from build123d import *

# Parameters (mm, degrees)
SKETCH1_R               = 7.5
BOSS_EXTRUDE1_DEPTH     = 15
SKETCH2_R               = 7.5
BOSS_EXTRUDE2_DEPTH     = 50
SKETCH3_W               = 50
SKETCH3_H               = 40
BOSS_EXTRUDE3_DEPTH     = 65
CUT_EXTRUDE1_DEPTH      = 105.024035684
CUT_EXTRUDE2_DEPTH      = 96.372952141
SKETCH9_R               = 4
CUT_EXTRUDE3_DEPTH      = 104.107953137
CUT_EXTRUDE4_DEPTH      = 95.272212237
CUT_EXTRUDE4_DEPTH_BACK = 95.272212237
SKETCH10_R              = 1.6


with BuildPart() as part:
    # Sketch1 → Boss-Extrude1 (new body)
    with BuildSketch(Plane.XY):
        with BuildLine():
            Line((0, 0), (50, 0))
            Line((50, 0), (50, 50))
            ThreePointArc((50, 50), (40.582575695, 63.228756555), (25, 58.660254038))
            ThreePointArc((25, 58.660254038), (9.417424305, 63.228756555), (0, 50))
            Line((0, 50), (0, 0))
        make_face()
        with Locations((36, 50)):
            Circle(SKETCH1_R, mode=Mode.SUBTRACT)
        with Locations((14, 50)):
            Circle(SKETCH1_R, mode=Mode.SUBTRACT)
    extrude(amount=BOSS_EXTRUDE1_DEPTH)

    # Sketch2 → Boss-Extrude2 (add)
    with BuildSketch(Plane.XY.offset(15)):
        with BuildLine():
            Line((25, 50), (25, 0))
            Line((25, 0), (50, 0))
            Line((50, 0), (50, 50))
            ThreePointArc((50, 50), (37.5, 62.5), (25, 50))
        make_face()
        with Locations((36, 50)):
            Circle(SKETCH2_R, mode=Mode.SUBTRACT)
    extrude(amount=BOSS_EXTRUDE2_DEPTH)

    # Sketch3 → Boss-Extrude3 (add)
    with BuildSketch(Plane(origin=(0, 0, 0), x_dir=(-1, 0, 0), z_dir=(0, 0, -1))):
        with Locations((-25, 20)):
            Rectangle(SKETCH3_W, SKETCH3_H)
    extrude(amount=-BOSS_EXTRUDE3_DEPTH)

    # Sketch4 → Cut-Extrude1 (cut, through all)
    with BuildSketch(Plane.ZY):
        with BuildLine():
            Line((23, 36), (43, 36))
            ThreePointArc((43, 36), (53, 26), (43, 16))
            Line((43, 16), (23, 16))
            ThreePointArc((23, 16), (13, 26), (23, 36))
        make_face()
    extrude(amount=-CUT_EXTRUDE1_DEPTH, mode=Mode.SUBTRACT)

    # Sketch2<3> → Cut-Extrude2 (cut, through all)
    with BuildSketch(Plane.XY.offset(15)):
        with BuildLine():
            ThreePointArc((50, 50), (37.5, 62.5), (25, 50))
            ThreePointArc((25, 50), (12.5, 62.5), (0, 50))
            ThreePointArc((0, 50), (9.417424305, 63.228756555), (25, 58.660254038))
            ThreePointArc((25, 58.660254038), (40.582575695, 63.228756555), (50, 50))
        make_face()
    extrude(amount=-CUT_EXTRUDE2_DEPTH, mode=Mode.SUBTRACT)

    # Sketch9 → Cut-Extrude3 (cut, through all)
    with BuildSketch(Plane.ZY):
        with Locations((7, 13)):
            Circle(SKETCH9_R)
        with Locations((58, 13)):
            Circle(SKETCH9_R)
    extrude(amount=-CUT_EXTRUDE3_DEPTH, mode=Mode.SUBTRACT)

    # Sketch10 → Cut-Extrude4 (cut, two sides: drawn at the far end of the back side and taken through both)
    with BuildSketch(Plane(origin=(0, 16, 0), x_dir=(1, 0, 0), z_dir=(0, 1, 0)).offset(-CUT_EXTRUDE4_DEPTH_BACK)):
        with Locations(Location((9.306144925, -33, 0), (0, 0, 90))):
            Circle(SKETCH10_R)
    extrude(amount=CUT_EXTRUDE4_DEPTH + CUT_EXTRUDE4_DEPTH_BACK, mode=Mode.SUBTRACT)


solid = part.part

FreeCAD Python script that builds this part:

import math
import FreeCAD as App
import Part
import Sketcher
from FreeCAD import Vector
Q = App.Units.Quantity

doc = App.newDocument("Part")
body = doc.addObject("PartDesign::Body", "Body")

# Sketch on XY plane
sketch1 = doc.addObject("Sketcher::SketchObject", "Sketch")
body.addObject(sketch1)
sketch1.AttachmentSupport = (doc.XY_Plane, [""])
sketch1.MapMode = "FlatFace"
sketch1.addGeometry(Part.LineSegment(Vector(0, 0, 0), Vector(50, 0, 0)), False)
sketch1.addGeometry(Part.LineSegment(Vector(50, 0, 0), Vector(50, 50, 0)), False)
sketch1.addGeometry(Part.ArcOfCircle(Part.Circle(Vector(36, 50, 0), Vector(0, 0, 1), 14), math.radians(0), math.radians(142)), False)
sketch1.addGeometry(Part.ArcOfCircle(Part.Circle(Vector(14, 50, 0), Vector(0, 0, 1), 14), math.radians(38), math.radians(180)), False)
sketch1.addGeometry(Part.LineSegment(Vector(0, 50, 0), Vector(0, 0, 0)), False)
sketch1.addGeometry(Part.Circle(Vector(14, 50, 0), Vector(0, 0, 1), 8), False)
sketch1.addGeometry(Part.Circle(Vector(36, 50, 0), Vector(0, 0, 1), 8), False)
sketch1.addConstraint(Sketcher.Constraint("Coincident", 0, 2, 1, 1))
sketch1.addConstraint(Sketcher.Constraint("Tangent", 1, 2, 2, 1))
sketch1.addConstraint(Sketcher.Constraint("Coincident", 2, 2, 3, 1))
sketch1.addConstraint(Sketcher.Constraint("Tangent", 3, 2, 4, 1))
sketch1.addConstraint(Sketcher.Constraint("Coincident", 4, 2, 0, 1))
sketch1.addConstraint(Sketcher.Constraint("Horizontal", 0))
sketch1.addConstraint(Sketcher.Constraint("Vertical", 1))
sketch1.addConstraint(Sketcher.Constraint("Vertical", 4))
sketch1.addConstraint(Sketcher.Constraint("Coincident", 4, 2, -1, 1))
sketch1.addConstraint(Sketcher.Constraint("Coincident", 5, 3, 3, 3))
sketch1.addConstraint(Sketcher.Constraint("Coincident", 6, 3, 2, 3))
sketch1.addConstraint(Sketcher.Constraint("Equal", 2, 3))
sketch1.addConstraint(Sketcher.Constraint("Equal", 5, 6))
sketch1.addConstraint(Sketcher.Constraint("Horizontal", 2, 3, 3, 3))
sketch1.addConstraint(Sketcher.Constraint("Equal", 0, 1))
sketch1.addConstraint(Sketcher.Constraint("Diameter", 5, Q("15 mm")))
sketch1.addConstraint(Sketcher.Constraint("Radius", 2, Q("14 mm")))
sketch1.addConstraint(Sketcher.Constraint("DistanceX", 0, 1, 0, 2, Q("50 mm")))
pad1 = doc.addObject("PartDesign::Pad", "Pad")
body.addObject(pad1)
pad1.Profile = sketch1
pad1.Length = 15

# Sketch on XY plane
sketch2 = doc.addObject("Sketcher::SketchObject", "Sketch001")
body.addObject(sketch2)
sketch2.AttachmentSupport = (doc.XY_Plane, [""])
sketch2.MapMode = "FlatFace"
sketch2.AttachmentOffset = App.Placement(Vector(0, 0, 15), App.Rotation())
sketch2.addGeometry(Part.LineSegment(Vector(25, 50, 0), Vector(25, 0, 0)), False)
sketch2.addGeometry(Part.LineSegment(Vector(25, 0, 0), Vector(50, 0, 0)), False)
sketch2.addGeometry(Part.LineSegment(Vector(50, 0, 0), Vector(50, 50, 0)), False)
sketch2.addGeometry(Part.ArcOfCircle(Part.Circle(Vector(38, 50, 0), Vector(0, 0, 1), 12), math.radians(0), math.radians(180)), False)
sketch2.addGeometry(Part.Circle(Vector(36, 50, 0), Vector(0, 0, 1), 8), False)
sketch2.addConstraint(Sketcher.Constraint("Coincident", 0, 2, 1, 1))
sketch2.addConstraint(Sketcher.Constraint("Coincident", 1, 2, 2, 1))
sketch2.addConstraint(Sketcher.Constraint("Tangent", 2, 2, 3, 1))
sketch2.addConstraint(Sketcher.Constraint("Tangent", 3, 2, 0, 1))
sketch2.addConstraint(Sketcher.Constraint("Vertical", 0))
sketch2.addConstraint(Sketcher.Constraint("Horizontal", 1))
sketch2.addConstraint(Sketcher.Constraint("Vertical", 2))
sketch2.addConstraint(Sketcher.Constraint("PointOnObject", 0, 2, -1))
sketch2.addConstraint(Sketcher.Constraint("Horizontal", 3, 3, 4, 3))
sketch2.addConstraint(Sketcher.Constraint("Diameter", 4, Q("15 mm")))
sketch2.addConstraint(Sketcher.Constraint("Radius", 3, Q("12.5 mm")))
sketch2.addConstraint(Sketcher.Constraint("DistanceY", 0, 2, 0, 1, Q("50 mm")))
sketch2.addConstraint(Sketcher.Constraint("DistanceX", -1, 1, 4, 3, Q("36 mm")))
sketch2.addConstraint(Sketcher.Constraint("DistanceX", -1, 1, 0, 2, Q("25 mm")))
pad2 = doc.addObject("PartDesign::Pad", "Pad001")
body.addObject(pad2)
pad2.Profile = sketch2
pad2.Length = 50

# Sketch on XY plane
sketch3 = doc.addObject("Sketcher::SketchObject", "Sketch002")
body.addObject(sketch3)
sketch3.AttachmentSupport = (doc.XY_Plane, [""])
sketch3.MapMode = "FlatFace"
sketch3.addGeometry(Part.LineSegment(Vector(50, 40, 0), Vector(50, 0, 0)), False)
sketch3.addGeometry(Part.LineSegment(Vector(50, 0, 0), Vector(0, 0, 0)), False)
sketch3.addGeometry(Part.LineSegment(Vector(0, 0, 0), Vector(0, 40, 0)), False)
sketch3.addGeometry(Part.LineSegment(Vector(0, 40, 0), Vector(50, 40, 0)), False)
sketch3.addConstraint(Sketcher.Constraint("Coincident", 0, 2, 1, 1))
sketch3.addConstraint(Sketcher.Constraint("Coincident", 1, 2, 2, 1))
sketch3.addConstraint(Sketcher.Constraint("Coincident", 2, 2, 3, 1))
sketch3.addConstraint(Sketcher.Constraint("Coincident", 3, 2, 0, 1))
sketch3.addConstraint(Sketcher.Constraint("Vertical", 0))
sketch3.addConstraint(Sketcher.Constraint("Horizontal", 1))
sketch3.addConstraint(Sketcher.Constraint("Vertical", 2))
sketch3.addConstraint(Sketcher.Constraint("Horizontal", 3))
sketch3.addConstraint(Sketcher.Constraint("Coincident", 1, 2, -1, 1))
sketch3.addConstraint(Sketcher.Constraint("DistanceX", 1, 2, 1, 1, Q("50 mm")))
sketch3.addConstraint(Sketcher.Constraint("DistanceY", 0, 2, 0, 1, Q("40 mm")))
pad3 = doc.addObject("PartDesign::Pad", "Pad002")
body.addObject(pad3)
pad3.Profile = sketch3
pad3.Length = 65

# Sketch on YZ plane
sketch4 = doc.addObject("Sketcher::SketchObject", "Sketch003")
body.addObject(sketch4)
sketch4.AttachmentSupport = (doc.YZ_Plane, [""])
sketch4.MapMode = "FlatFace"
sketch4.addGeometry(Part.LineSegment(Vector(36, 43, 0), Vector(36, 23, 0)), False)
sketch4.addGeometry(Part.ArcOfCircle(Part.Circle(Vector(26, 23, 0), Vector(0, 0, 1), 10), math.radians(180), math.radians(360)), False)
sketch4.addGeometry(Part.LineSegment(Vector(16, 23, 0), Vector(16, 43, 0)), False)
sketch4.addGeometry(Part.ArcOfCircle(Part.Circle(Vector(26, 43, 0), Vector(0, 0, 1), 10), math.radians(0), math.radians(180)), False)
sketch4.addConstraint(Sketcher.Constraint("Tangent", 0, 2, 1, 2))
sketch4.addConstraint(Sketcher.Constraint("Tangent", 1, 1, 2, 1))
sketch4.addConstraint(Sketcher.Constraint("Tangent", 2, 2, 3, 2))
sketch4.addConstraint(Sketcher.Constraint("Tangent", 3, 1, 0, 1))
sketch4.addConstraint(Sketcher.Constraint("Vertical", 0))
sketch4.addConstraint(Sketcher.Constraint("Vertical", 2))
sketch4.addConstraint(Sketcher.Constraint("Radius", 1, Q("10 mm")))
sketch4.addConstraint(Sketcher.Constraint("DistanceY", 0, 2, 0, 1, Q("20 mm")))
sketch4.addConstraint(Sketcher.Constraint("DistanceX", -1, 1, 1, 3, Q("26 mm")))
sketch4.addConstraint(Sketcher.Constraint("DistanceY", -1, 1, 1, 3, Q("23 mm")))
pocket1 = doc.addObject("PartDesign::Pocket", "Pocket")
body.addObject(pocket1)
pocket1.Profile = sketch4
pocket1.Type = "ThroughAll"
pocket1.Reversed = True

# Sketch on XY plane
sketch5 = doc.addObject("Sketcher::SketchObject", "Sketch004")
body.addObject(sketch5)
sketch5.AttachmentSupport = (doc.XY_Plane, [""])
sketch5.MapMode = "FlatFace"
sketch5.AttachmentOffset = App.Placement(Vector(0, 0, 15), App.Rotation())
sketch5.addGeometry(Part.ArcOfCircle(Part.Circle(Vector(38, 50, 0), Vector(0, 0, 1), 12), math.radians(0), math.radians(180)), False)
sketch5.addGeometry(Part.ArcOfCircle(Part.Circle(Vector(36, 50, 0), Vector(0, 0, 1), 14), math.radians(0), math.radians(142)), False)
sketch5.addGeometry(Part.ArcOfCircle(Part.Circle(Vector(14, 50, 0), Vector(0, 0, 1), 14), math.radians(38), math.radians(180)), False)
sketch5.addGeometry(Part.ArcOfCircle(Part.Circle(Vector(12, 50, 0), Vector(0, 0, 1), 12), math.radians(0), math.radians(180)), False)
sketch5.addConstraint(Sketcher.Constraint("Tangent", 0, 1, 1, 1))
sketch5.addConstraint(Sketcher.Constraint("Coincident", 1, 2, 2, 1))
sketch5.addConstraint(Sketcher.Constraint("Tangent", 2, 2, 3, 2))
sketch5.addConstraint(Sketcher.Constraint("Tangent", 3, 1, 0, 2))
sketch5.addConstraint(Sketcher.Constraint("Equal", 1, 2))
sketch5.addConstraint(Sketcher.Constraint("Equal", 0, 3))
sketch5.addConstraint(Sketcher.Constraint("PointOnObject", 2, 2, -2))
sketch5.addConstraint(Sketcher.Constraint("Horizontal", 0, 3, 1, 3))
sketch5.addConstraint(Sketcher.Constraint("Horizontal", 1, 3, 2, 3))
sketch5.addConstraint(Sketcher.Constraint("Horizontal", 2, 3, 3, 3))
sketch5.addConstraint(Sketcher.Constraint("Radius", 1, Q("14 mm")))
sketch5.addConstraint(Sketcher.Constraint("Radius", 0, Q("12.5 mm")))
sketch5.addConstraint(Sketcher.Constraint("DistanceY", -1, 1, 0, 3, Q("50 mm")))
pocket2 = doc.addObject("PartDesign::Pocket", "Pocket001")
body.addObject(pocket2)
pocket2.Profile = sketch5
pocket2.Type = "ThroughAll"

# Sketch on YZ plane
sketch6 = doc.addObject("Sketcher::SketchObject", "Sketch005")
body.addObject(sketch6)
sketch6.AttachmentSupport = (doc.YZ_Plane, [""])
sketch6.MapMode = "FlatFace"
sketch6.addGeometry(Part.Circle(Vector(13, 7, 0), Vector(0, 0, 1), 4), False)
sketch6.addGeometry(Part.Circle(Vector(13, 58, 0), Vector(0, 0, 1), 4), False)
sketch6.addConstraint(Sketcher.Constraint("Equal", 0, 1))
sketch6.addConstraint(Sketcher.Constraint("Vertical", 0, 3, 1, 3))
sketch6.addConstraint(Sketcher.Constraint("Diameter", 0, Q("8 mm")))
sketch6.addConstraint(Sketcher.Constraint("DistanceX", -1, 1, 0, 3, Q("13 mm")))
sketch6.addConstraint(Sketcher.Constraint("DistanceY", -1, 1, 0, 3, Q("7 mm")))
sketch6.addConstraint(Sketcher.Constraint("DistanceY", -1, 1, 1, 3, Q("58 mm")))
pocket3 = doc.addObject("PartDesign::Pocket", "Pocket002")
body.addObject(pocket3)
pocket3.Profile = sketch6
pocket3.Type = "ThroughAll"
pocket3.Reversed = True

# Sketch on XZ plane
sketch7 = doc.addObject("Sketcher::SketchObject", "Sketch006")
body.addObject(sketch7)
sketch7.AttachmentSupport = (doc.XZ_Plane, [""])
sketch7.MapMode = "FlatFace"
sketch7.AttachmentOffset = App.Placement(Vector(0, 0, -16), App.Rotation())
sketch7.addGeometry(Part.Circle(Vector(9.3, 33, 0), Vector(0, 0, 1), 1.6), False)
sketch7.addConstraint(Sketcher.Constraint("Diameter", 0, Q("3.2 mm")))
sketch7.addConstraint(Sketcher.Constraint("DistanceY", -1, 1, 0, 3, Q("33 mm")))
sketch7.addConstraint(Sketcher.Constraint("DistanceX", -1, 1, 0, 3, Q("9.306145 mm")))
pocket4 = doc.addObject("PartDesign::Pocket", "Pocket003")
body.addObject(pocket4)
pocket4.Profile = sketch7
pocket4.Type = "ThroughAll"
pocket4.Midplane = True

doc.recompute()
